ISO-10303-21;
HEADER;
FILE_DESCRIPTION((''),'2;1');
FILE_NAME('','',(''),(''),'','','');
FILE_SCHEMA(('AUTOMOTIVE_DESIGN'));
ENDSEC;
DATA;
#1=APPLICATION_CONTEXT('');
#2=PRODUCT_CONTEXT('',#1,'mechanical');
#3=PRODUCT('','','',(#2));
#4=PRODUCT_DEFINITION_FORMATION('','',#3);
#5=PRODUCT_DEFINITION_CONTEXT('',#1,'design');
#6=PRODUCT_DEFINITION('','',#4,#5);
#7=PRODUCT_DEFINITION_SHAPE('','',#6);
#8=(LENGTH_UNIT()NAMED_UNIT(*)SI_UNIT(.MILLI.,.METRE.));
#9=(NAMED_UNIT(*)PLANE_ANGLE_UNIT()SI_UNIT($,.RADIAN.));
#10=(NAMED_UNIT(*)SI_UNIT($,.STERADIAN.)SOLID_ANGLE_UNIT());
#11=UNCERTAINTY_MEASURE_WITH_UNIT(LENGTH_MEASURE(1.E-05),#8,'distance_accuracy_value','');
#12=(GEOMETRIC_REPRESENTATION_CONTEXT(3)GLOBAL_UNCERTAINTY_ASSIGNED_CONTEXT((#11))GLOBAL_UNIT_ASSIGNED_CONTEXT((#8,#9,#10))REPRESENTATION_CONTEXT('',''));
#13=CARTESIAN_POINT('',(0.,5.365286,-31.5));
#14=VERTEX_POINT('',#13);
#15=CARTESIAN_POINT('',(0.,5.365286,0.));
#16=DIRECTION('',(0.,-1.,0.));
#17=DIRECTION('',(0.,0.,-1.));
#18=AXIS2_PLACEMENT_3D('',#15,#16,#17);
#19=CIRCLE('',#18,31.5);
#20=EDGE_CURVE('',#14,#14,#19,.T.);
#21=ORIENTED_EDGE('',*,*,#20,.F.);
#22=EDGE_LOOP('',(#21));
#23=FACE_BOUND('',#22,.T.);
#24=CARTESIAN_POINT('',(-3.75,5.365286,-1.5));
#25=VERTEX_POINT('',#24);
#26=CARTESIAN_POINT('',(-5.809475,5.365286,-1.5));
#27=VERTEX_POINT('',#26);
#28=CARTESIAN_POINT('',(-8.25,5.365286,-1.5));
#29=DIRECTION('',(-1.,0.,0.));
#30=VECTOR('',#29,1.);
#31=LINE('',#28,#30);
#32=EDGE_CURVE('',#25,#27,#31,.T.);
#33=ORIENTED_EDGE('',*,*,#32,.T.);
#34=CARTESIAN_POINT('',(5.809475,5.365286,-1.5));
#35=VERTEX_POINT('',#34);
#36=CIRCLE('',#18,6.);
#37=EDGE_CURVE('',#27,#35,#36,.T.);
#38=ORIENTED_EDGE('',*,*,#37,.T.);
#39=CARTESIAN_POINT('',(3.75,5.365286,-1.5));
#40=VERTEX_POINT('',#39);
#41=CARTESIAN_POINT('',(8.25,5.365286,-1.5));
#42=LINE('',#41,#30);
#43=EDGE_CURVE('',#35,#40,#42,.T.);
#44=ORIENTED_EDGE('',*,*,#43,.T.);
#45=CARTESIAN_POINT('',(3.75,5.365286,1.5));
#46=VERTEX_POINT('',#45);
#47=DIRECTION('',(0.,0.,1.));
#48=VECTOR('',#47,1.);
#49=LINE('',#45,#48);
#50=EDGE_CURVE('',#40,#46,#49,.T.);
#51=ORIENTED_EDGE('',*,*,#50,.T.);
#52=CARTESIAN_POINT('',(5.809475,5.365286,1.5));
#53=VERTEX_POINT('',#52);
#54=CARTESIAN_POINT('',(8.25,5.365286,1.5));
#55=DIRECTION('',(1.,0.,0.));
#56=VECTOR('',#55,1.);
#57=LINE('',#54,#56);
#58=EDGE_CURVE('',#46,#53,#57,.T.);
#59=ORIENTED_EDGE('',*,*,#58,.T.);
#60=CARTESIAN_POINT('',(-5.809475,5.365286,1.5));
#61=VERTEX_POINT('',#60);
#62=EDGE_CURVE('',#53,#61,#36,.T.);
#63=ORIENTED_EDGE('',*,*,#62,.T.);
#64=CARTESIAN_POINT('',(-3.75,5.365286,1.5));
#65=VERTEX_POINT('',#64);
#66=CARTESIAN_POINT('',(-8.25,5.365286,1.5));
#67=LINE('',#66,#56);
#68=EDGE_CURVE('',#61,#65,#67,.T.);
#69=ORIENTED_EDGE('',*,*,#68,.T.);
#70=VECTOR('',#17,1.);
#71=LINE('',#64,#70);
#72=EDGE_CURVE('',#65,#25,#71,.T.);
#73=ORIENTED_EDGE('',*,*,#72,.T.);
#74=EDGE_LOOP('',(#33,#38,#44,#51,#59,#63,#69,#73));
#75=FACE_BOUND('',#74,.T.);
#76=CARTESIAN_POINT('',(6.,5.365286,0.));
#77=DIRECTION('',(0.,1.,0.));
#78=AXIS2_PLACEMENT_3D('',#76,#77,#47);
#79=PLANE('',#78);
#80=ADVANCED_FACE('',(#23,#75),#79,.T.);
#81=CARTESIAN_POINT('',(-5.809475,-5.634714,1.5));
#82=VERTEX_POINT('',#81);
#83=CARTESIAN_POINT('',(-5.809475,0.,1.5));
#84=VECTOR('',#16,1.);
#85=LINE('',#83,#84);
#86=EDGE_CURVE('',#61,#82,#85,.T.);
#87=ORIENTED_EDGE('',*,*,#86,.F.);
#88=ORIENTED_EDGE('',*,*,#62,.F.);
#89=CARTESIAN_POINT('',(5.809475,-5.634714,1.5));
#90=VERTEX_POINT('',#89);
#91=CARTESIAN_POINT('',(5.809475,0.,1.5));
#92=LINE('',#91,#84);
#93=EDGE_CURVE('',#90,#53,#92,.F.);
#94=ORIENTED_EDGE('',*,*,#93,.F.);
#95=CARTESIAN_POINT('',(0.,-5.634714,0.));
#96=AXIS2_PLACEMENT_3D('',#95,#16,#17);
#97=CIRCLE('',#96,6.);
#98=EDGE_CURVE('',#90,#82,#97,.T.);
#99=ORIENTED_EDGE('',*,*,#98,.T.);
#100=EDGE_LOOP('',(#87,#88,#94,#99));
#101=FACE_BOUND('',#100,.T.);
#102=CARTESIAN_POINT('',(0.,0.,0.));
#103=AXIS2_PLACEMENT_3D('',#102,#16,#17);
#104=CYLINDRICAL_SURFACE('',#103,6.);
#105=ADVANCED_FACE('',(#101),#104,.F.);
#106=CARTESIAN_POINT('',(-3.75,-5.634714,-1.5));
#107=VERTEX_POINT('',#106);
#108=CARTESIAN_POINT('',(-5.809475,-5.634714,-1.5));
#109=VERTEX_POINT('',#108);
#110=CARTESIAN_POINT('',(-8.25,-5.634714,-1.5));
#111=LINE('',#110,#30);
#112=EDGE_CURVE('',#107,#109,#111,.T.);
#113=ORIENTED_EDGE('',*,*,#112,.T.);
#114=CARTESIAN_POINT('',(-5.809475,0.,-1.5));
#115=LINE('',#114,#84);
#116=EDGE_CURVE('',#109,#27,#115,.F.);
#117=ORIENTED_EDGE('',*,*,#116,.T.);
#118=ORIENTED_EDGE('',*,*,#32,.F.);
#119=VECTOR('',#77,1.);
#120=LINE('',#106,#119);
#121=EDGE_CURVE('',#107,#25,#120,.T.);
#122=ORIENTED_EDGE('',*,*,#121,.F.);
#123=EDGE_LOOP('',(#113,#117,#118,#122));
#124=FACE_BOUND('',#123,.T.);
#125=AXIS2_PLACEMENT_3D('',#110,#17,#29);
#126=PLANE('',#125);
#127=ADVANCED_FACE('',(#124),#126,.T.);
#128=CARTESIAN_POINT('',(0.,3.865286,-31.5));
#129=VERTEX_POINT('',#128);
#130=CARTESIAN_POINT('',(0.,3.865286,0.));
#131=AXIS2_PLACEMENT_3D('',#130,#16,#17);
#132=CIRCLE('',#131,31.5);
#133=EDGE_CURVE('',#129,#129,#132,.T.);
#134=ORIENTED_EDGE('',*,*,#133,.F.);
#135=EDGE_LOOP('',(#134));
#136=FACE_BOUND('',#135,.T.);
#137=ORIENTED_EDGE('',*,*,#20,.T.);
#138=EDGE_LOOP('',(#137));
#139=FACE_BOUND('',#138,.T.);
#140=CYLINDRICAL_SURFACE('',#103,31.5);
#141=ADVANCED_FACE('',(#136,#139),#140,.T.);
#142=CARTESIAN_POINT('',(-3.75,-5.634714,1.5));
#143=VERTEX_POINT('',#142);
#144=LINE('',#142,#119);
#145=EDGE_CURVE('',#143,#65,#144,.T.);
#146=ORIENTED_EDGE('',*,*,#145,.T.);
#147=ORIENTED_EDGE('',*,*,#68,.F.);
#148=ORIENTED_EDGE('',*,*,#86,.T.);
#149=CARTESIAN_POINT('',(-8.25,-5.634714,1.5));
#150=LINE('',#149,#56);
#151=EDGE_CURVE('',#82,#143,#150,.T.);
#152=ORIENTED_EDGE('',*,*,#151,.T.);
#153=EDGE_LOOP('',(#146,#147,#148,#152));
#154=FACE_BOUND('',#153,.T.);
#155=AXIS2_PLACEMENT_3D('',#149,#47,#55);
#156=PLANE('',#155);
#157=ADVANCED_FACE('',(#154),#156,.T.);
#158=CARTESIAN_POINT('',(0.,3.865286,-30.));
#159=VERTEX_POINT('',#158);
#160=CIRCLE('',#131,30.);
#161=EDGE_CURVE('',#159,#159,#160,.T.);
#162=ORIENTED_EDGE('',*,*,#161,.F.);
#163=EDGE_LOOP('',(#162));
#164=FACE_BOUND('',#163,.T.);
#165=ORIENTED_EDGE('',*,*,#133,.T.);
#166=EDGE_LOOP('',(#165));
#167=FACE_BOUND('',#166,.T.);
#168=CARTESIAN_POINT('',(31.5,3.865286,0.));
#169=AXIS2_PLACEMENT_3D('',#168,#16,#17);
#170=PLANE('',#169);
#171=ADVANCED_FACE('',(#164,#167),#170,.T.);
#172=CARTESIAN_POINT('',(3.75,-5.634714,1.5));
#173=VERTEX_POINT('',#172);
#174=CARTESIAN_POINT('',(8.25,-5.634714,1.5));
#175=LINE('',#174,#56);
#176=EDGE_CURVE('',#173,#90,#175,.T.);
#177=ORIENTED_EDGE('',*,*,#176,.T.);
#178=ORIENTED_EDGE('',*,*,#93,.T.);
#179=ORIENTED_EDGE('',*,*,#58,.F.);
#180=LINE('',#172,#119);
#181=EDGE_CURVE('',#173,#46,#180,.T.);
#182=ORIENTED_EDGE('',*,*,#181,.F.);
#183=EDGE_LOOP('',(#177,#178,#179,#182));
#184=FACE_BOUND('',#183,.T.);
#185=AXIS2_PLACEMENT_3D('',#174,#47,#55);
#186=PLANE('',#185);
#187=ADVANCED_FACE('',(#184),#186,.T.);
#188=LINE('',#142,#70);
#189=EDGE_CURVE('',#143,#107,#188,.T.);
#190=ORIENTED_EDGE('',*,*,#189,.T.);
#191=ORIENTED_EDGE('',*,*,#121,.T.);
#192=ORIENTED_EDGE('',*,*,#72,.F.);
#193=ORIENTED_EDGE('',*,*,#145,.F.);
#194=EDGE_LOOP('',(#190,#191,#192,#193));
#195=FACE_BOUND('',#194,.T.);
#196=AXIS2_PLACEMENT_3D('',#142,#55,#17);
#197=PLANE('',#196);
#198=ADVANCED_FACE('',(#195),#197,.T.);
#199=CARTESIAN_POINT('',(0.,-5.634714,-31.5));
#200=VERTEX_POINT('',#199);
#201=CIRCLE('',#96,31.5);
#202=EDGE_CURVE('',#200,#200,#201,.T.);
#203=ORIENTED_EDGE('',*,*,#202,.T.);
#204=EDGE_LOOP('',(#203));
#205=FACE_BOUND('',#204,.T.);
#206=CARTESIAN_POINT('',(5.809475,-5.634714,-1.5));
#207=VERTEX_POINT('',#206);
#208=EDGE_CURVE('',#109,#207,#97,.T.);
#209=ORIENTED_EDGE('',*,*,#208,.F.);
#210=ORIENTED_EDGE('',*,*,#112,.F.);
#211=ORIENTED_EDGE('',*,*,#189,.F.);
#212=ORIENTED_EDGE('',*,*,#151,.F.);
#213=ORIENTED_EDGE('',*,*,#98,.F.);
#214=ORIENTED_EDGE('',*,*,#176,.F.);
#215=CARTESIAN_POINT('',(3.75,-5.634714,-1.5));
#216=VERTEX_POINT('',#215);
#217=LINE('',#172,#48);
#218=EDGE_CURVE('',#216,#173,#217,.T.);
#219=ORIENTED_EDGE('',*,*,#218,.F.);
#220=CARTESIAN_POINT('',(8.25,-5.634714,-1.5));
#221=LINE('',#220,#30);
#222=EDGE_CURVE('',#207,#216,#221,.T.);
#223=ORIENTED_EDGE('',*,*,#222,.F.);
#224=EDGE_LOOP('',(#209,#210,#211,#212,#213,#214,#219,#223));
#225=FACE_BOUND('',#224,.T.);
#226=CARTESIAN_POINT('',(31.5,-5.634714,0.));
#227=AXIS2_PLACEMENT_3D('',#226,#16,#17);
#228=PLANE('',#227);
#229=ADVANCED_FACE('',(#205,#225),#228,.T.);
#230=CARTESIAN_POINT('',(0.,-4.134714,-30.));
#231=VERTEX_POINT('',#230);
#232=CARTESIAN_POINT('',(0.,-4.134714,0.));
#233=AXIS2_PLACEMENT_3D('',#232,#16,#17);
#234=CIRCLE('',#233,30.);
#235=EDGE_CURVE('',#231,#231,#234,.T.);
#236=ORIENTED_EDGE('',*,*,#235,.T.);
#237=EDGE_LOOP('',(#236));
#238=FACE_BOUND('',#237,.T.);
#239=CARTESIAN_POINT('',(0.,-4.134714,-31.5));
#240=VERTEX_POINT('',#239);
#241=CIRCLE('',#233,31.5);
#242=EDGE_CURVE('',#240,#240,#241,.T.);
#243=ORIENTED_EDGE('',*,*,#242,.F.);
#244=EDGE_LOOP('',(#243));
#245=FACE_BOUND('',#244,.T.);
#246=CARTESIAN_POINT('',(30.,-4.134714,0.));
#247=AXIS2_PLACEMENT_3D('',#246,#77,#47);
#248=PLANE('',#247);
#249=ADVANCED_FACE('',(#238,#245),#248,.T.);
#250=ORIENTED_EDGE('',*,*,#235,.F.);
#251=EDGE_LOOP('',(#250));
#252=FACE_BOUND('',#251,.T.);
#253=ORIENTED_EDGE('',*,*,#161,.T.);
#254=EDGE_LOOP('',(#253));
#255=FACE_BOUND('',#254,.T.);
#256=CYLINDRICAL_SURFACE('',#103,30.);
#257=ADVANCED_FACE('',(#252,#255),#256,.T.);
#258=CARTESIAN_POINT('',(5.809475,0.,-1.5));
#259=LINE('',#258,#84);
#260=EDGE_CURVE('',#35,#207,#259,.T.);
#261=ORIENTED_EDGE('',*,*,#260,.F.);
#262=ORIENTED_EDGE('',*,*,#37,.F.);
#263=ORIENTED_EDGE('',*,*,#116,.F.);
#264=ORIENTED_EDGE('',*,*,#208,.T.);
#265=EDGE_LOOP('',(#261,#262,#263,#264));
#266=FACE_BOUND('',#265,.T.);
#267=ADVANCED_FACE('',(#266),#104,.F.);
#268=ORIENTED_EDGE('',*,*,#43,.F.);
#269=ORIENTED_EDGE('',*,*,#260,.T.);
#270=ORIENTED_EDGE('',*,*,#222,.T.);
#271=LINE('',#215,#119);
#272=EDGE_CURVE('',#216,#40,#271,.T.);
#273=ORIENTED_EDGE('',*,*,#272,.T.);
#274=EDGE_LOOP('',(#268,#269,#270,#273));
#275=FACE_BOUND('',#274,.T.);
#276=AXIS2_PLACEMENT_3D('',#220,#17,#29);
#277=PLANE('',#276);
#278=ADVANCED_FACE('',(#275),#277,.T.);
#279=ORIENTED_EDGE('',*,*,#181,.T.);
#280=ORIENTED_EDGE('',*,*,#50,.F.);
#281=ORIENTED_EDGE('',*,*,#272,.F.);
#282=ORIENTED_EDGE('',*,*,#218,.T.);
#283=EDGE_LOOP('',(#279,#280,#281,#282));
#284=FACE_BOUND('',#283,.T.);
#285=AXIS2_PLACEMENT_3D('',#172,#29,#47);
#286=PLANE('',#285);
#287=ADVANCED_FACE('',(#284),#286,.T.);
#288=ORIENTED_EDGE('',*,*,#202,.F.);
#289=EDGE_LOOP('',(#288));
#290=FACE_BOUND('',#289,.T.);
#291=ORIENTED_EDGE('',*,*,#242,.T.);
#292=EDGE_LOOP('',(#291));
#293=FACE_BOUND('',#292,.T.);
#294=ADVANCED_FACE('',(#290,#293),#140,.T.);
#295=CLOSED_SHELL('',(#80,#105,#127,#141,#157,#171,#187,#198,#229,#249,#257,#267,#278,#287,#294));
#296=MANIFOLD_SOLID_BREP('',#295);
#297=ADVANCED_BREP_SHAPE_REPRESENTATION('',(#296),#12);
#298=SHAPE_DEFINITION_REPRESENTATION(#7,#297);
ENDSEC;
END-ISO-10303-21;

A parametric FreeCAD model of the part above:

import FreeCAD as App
import Part
import Sketcher

V = App.Vector


def add_polygon(sketch, points):
    """Adds a closed chain of lines whose ends are joined by coincident constraints."""
    first, n = sketch.GeometryCount, len(points)
    for a, b in zip(points, points[1:] + points[:1]):
        sketch.addGeometry(Part.LineSegment(App.Vector(*a, 0), App.Vector(*b, 0)), False)
    for i in range(n):
        sketch.addConstraint(Sketcher.Constraint("Coincident", first + i, 2, first + (i + 1) % n, 1))

doc = App.newDocument("Part")
body = doc.addObject("PartDesign::Body", "Body")

# Sketch on XY plane
sketch1 = body.newObject("Sketcher::SketchObject", "Sketch")
sketch1.AttachmentSupport = (doc.getObject("XY_Plane"), [""])
sketch1.MapMode = "FlatFace"
add_polygon(sketch1, [(6, 5.365286), (6, -5.634714), (31.5, -5.634714), (31.5, -4.134714), (30, -4.134714), (30, 3.865286), (31.5, 3.865286), (31.5, 5.365286)])  # lines 0-7
sketch1.addConstraint([
    Sketcher.Constraint("Vertical", 0),
    Sketcher.Constraint("Horizontal", 1),
    Sketcher.Constraint("Vertical", 2),
    Sketcher.Constraint("Horizontal", 3),
    Sketcher.Constraint("Vertical", 4),
    Sketcher.Constraint("Horizontal", 5),
    Sketcher.Constraint("Vertical", 6),
    Sketcher.Constraint("Horizontal", 7),
    Sketcher.Constraint("Vertical", 2, 2, 5, 2),
    Sketcher.Constraint("Equal", 5, 2),
    Sketcher.Constraint("Equal", 2, 6),
    Sketcher.Constraint("DistanceY", 0, 2, 0, 1, 11.0),
    Sketcher.Constraint("DistanceY", 4, 1, 4, 2, 8.0),
    Sketcher.Constraint("DistanceX", 1, 1, 1, 2, 25.5),
    Sketcher.Constraint("DistanceX", -1, 1, 0, 2, 6.0),
    Sketcher.Constraint("DistanceY", 0, 2, -1, 1, 5.634714),
])
revolution = body.newObject("PartDesign::Revolution", "Revolution")
revolution.Profile = sketch1
revolution.ReferenceAxis = (sketch1, ["V_Axis"])
revolution.Angle = 360

# Sketch on XZ plane
sketch2 = body.newObject("Sketcher::SketchObject", "Sketch001")
sketch2.AttachmentSupport = (doc.getObject("XZ_Plane"), [""])
sketch2.MapMode = "FlatFace"
sketch2.AttachmentOffset = App.Placement(V(0, 0, -5.365286), App.Rotation())
add_polygon(sketch2, [(-8.25, -1.5), (-8.25, 1.5), (-3.75, 1.5), (-3.75, -1.5)])  # lines 0-3
add_polygon(sketch2, [(3.75, -1.5), (3.75, 1.5), (8.25, 1.5), (8.25, -1.5)])  # lines 4-7
sketch2.addConstraint([
    Sketcher.Constraint("Vertical", 0),
    Sketcher.Constraint("Horizontal", 1),
    Sketcher.Constraint("Vertical", 2),
    Sketcher.Constraint("Horizontal", 3),
    Sketcher.Constraint("Vertical", 4),
    Sketcher.Constraint("Horizontal", 5),
    Sketcher.Constraint("Vertical", 6),
    Sketcher.Constraint("Horizontal", 7),
    Sketcher.Constraint("Symmetric", 2, 2, 4, 2, -1, 1),
    Sketcher.Constraint("Symmetric", 0, 2, 6, 2, -1, 1),
    Sketcher.Constraint("Horizontal", 1, 2, 4, 2),
    Sketcher.Constraint("DistanceY", 0, 1, 0, 2, 3.0),
    Sketcher.Constraint("DistanceX", 1, 1, 1, 2, 4.5),
    Sketcher.Constraint("DistanceX", 0, 2, 4, 2, 12.0),
])
pad1 = body.newObject("PartDesign::Pad", "Pad")
pad1.Profile = sketch2
pad1.Length = 11

doc.recompute()
